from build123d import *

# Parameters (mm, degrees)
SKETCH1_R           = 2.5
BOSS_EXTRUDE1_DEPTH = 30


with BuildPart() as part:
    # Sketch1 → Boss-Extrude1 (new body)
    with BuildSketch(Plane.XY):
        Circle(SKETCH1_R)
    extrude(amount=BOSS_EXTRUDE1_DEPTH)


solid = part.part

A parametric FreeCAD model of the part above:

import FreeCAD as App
import Part
import Sketcher
Q = App.Units.Quantity

doc = App.newDocument("Part")
body = doc.addObject("PartDesign::Body", "Body")

# Sketch on XY plane
sketch1 = doc.addObject("Sketcher::SketchObject", "Sketch")
body.addObject(sketch1)
sketch1.AttachmentSupport = (doc.XY_Plane, [""])
sketch1.MapMode = "FlatFace"
sketch1.addGeometry(Part.Circle(App.Vector(0, 0, 0), App.Vector(0, 0, 1), 2.5), False)
sketch1.addConstraint(Sketcher.Constraint("Coincident", 0, 3, -1, 1))
sketch1.addConstraint(Sketcher.Constraint("Diameter", 0, Q("5 mm")))
pad1 = doc.addObject("PartDesign::Pad", "Pad")
body.addObject(pad1)
pad1.Profile = sketch1
pad1.Length = 30

doc.recompute()
